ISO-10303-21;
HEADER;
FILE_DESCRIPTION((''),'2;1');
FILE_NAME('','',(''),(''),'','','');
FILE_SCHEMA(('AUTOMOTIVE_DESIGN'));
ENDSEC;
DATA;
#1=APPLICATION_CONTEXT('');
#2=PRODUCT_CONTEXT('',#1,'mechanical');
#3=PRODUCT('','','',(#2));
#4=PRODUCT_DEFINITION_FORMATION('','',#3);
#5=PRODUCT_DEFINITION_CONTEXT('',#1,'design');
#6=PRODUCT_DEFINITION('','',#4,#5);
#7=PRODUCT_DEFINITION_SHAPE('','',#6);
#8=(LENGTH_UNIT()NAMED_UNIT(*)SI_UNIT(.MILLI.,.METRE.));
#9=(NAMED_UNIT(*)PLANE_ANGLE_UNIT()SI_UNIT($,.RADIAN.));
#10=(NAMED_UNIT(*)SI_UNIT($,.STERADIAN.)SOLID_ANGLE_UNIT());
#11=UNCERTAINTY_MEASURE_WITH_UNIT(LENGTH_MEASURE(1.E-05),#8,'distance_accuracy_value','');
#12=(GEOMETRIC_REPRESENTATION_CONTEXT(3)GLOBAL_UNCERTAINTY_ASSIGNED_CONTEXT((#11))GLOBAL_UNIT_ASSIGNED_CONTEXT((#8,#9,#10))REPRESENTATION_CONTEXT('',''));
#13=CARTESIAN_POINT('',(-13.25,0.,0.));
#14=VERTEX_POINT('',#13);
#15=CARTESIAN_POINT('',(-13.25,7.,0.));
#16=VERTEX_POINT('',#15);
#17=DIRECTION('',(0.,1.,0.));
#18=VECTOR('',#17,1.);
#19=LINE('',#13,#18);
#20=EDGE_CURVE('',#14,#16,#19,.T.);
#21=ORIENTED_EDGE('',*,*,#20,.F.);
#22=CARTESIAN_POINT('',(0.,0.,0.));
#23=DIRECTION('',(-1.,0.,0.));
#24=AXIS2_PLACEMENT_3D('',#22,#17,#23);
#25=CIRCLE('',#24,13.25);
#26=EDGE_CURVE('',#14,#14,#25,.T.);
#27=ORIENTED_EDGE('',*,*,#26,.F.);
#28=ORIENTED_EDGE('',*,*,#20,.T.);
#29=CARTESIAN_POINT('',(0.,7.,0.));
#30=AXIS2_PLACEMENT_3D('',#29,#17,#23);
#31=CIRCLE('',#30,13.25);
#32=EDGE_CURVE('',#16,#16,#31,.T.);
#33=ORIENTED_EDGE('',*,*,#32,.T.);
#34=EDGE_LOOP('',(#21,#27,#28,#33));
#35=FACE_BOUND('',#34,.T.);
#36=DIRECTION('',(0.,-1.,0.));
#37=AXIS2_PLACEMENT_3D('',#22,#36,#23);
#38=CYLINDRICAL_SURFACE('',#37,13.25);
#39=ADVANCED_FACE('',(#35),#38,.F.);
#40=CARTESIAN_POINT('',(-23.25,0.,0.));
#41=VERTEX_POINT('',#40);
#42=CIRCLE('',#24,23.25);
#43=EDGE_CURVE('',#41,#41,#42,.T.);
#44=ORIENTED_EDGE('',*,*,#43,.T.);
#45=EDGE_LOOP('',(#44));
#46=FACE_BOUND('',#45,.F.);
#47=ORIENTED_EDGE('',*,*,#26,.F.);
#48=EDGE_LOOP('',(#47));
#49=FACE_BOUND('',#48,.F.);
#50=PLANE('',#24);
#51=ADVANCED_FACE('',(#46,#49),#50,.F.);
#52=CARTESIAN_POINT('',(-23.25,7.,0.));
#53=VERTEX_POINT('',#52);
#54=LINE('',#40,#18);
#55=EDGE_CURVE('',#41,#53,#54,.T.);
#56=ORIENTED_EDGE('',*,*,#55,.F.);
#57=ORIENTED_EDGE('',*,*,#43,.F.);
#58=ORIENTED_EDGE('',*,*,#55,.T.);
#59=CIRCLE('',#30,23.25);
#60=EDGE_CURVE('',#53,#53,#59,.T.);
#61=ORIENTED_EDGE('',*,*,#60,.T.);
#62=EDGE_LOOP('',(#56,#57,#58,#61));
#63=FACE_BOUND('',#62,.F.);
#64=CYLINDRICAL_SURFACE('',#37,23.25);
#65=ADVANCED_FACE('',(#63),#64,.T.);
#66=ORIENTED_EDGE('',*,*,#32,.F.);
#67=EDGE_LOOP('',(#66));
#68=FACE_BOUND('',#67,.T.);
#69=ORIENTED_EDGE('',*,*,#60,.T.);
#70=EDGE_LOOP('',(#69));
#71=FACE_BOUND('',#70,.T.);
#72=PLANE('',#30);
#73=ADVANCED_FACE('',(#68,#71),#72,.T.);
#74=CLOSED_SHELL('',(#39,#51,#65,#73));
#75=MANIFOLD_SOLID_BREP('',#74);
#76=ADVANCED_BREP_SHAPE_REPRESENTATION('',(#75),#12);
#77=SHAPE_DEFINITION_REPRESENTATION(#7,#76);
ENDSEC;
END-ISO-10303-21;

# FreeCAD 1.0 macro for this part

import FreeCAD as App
import Part
import Sketcher
from FreeCAD import Vector
Q = App.Units.Quantity

doc = App.newDocument("Part")
params = doc.addObject("Spreadsheet::Sheet", "Params")
for row, (alias, value) in enumerate([
    ("sketch1_diameter", "26.5 mm"),
    ("sketch1_diameter2", "46.5 mm"),
    ("pad1_length", "7 mm"),
], start=1):
    params.set(f"A{row}", alias)
    params.set(f"B{row}", "=" + value)
    params.setAlias(f"B{row}", alias)

body = doc.addObject("PartDesign::Body", "Body")

sketch1 = doc.addObject("Sketcher::SketchObject", "Sketch")
body.addObject(sketch1)
sketch1.AttachmentSupport = (doc.XZ_Plane, [""])
sketch1.MapMode = "FlatFace"
sketch1.addGeometry(Part.Circle(Vector(0, 0, 0), Vector(0, 0, 1), 23), False)
sketch1.addGeometry(Part.Circle(Vector(0, 0, 0), Vector(0, 0, 1), 13), False)
sketch1.addConstraint(Sketcher.Constraint("Coincident", 0, 3, -1, 1))
sketch1.addConstraint(Sketcher.Constraint("Coincident", 1, 3, -1, 1))
sketch1.addConstraint(Sketcher.Constraint("Diameter", 1, Q("26.5 mm")))
sketch1.addConstraint(Sketcher.Constraint("Diameter", 0, Q("46.5 mm")))
sketch1.setExpression("Constraints[2]", "Params.sketch1_diameter")
sketch1.setExpression("Constraints[3]", "Params.sketch1_diameter2")
pad1 = doc.addObject("PartDesign::Pad", "Pad")
body.addObject(pad1)
pad1.Profile = sketch1
pad1.setExpression("Length", "Params.pad1_length")
pad1.Reversed = True

doc.recompute()
